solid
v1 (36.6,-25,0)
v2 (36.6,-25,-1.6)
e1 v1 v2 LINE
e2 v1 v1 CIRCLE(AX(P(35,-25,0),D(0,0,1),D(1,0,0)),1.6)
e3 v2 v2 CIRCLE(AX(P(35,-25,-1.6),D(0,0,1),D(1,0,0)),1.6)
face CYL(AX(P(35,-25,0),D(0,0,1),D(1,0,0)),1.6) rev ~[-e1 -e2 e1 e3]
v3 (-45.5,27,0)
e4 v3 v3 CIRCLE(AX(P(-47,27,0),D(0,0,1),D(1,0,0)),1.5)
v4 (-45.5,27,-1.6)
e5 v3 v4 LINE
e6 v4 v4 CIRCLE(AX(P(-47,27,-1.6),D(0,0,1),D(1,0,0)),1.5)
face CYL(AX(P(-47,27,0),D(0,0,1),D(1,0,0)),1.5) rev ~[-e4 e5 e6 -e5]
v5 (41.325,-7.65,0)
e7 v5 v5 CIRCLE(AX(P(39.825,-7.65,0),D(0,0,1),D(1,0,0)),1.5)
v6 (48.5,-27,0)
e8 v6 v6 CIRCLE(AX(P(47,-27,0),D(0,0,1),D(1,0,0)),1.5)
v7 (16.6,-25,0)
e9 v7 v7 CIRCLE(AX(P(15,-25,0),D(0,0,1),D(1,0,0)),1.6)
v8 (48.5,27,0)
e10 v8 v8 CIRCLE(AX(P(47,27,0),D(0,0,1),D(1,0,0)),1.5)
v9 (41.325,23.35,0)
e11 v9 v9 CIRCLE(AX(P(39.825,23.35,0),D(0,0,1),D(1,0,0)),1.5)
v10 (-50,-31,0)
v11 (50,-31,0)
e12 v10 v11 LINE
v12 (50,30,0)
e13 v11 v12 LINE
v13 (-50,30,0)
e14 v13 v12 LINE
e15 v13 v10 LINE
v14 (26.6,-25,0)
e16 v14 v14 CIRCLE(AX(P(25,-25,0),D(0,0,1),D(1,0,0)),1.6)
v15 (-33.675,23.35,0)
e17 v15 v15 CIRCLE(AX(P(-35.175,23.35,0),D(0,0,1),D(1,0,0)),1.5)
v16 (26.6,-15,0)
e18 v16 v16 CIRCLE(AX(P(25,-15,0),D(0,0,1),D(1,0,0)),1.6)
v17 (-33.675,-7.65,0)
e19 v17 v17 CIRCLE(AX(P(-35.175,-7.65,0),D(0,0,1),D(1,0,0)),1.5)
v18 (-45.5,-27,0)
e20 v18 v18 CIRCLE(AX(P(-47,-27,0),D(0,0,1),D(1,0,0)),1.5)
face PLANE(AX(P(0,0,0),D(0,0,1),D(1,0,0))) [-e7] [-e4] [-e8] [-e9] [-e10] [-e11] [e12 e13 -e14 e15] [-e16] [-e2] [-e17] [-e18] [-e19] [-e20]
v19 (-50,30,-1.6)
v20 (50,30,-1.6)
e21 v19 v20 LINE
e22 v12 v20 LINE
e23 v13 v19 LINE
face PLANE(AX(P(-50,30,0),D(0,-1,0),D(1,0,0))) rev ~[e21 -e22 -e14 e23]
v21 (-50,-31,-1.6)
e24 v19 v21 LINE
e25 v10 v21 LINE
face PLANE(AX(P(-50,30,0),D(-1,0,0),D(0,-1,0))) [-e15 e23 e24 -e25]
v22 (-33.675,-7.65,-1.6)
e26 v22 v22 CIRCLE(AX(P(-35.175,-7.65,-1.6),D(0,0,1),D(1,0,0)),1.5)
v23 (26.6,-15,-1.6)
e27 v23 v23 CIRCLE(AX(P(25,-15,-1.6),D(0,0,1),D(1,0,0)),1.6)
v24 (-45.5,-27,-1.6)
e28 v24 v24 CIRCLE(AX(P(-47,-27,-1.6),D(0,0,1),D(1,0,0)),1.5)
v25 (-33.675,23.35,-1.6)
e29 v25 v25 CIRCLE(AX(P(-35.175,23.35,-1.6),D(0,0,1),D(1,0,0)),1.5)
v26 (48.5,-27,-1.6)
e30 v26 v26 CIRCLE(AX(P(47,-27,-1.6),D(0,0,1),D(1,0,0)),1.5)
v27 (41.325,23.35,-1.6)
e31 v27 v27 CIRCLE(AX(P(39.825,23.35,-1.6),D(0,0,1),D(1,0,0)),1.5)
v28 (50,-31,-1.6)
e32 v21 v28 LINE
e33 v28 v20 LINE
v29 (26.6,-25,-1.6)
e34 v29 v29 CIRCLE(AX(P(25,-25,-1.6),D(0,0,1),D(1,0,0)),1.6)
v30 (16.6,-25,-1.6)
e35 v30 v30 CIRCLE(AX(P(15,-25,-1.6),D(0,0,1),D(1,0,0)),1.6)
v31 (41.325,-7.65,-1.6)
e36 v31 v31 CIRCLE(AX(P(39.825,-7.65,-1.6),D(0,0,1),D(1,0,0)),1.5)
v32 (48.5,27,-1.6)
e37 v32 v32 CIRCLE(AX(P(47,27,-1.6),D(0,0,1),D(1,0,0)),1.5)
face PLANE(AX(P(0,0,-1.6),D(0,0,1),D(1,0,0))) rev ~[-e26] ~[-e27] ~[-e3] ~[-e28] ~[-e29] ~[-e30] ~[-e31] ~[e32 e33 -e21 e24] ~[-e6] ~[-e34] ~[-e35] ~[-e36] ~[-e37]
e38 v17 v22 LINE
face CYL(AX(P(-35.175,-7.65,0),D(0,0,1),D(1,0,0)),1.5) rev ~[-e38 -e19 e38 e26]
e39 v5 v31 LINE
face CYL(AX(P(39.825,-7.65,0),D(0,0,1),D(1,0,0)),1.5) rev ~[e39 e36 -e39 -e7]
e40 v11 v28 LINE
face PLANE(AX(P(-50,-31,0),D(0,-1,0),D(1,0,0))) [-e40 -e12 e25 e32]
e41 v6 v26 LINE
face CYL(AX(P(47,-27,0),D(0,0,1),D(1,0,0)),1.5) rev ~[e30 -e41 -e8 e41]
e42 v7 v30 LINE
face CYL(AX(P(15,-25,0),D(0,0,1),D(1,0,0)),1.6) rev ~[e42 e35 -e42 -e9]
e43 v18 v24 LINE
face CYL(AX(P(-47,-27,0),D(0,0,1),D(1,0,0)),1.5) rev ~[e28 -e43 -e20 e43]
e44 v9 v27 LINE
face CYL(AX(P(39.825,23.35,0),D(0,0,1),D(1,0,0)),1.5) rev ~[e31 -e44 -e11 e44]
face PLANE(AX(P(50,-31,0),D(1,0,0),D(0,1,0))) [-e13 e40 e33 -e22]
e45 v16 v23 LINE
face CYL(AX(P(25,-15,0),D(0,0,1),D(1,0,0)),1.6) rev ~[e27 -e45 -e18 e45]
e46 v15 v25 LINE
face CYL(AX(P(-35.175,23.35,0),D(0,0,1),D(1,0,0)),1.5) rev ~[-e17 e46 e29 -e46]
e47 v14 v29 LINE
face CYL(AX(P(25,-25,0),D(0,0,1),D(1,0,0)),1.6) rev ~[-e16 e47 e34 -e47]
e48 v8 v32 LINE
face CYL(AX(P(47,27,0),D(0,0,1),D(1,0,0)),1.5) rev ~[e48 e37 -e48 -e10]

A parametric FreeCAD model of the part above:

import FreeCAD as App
import Part
import Sketcher
from FreeCAD import Vector
Q = App.Units.Quantity


def add_polygon(sketch, points):
    """Adds a closed chain of lines whose ends are joined by coincident constraints."""
    first, n = sketch.GeometryCount, len(points)
    for a, b in zip(points, points[1:] + points[:1]):
        sketch.addGeometry(Part.LineSegment(App.Vector(*a, 0), App.Vector(*b, 0)), False)
    for i in range(n):
        sketch.addConstraint(Sketcher.Constraint("Coincident", first + i, 2, first + (i + 1) % n, 1))

doc = App.newDocument("Part")
body = doc.addObject("PartDesign::Body", "Body")

sketch1 = body.newObject("Sketcher::SketchObject", "Sketch")
sketch1.AttachmentSupport = (doc.getObject("XY_Plane"), [""])
sketch1.MapMode = "FlatFace"
add_polygon(sketch1, [(50, 30), (-50, 30), (-50, -31), (50, -31)])
sketch1.addGeometry(Part.Circle(Vector(-47, -27, 0), Vector(0, 0, 1), 1.5), False)
sketch1.addGeometry(Part.Circle(Vector(-35.2, -7.7, 0), Vector(0, 0, 1), 1.5), False)
sketch1.addGeometry(Part.Circle(Vector(15, -25, 0), Vector(0, 0, 1), 1.6), False)
sketch1.addGeometry(Part.Circle(Vector(25, -25, 0), Vector(0, 0, 1), 1.6), False)
sketch1.addGeometry(Part.Circle(Vector(35, -25, 0), Vector(0, 0, 1), 1.6), False)
sketch1.addGeometry(Part.Circle(Vector(47, -27, 0), Vector(0, 0, 1), 1.5), False)
sketch1.addGeometry(Part.Circle(Vector(25, -15, 0), Vector(0, 0, 1), 1.6), False)
sketch1.addGeometry(Part.Circle(Vector(39.8, -7.7, 0), Vector(0, 0, 1), 1.5), False)
sketch1.addGeometry(Part.Circle(Vector(-47, 27, 0), Vector(0, 0, 1), 1.5), False)
sketch1.addGeometry(Part.Circle(Vector(-35.2, 23.4, 0), Vector(0, 0, 1), 1.5), False)
sketch1.addGeometry(Part.Circle(Vector(39.8, 23.4, 0), Vector(0, 0, 1), 1.5), False)
sketch1.addGeometry(Part.Circle(Vector(47, 27, 0), Vector(0, 0, 1), 1.5), False)
sketch1.addConstraint([
    Sketcher.Constraint("Horizontal", 0),
    Sketcher.Constraint("Vertical", 1),
    Sketcher.Constraint("Horizontal", 2),
    Sketcher.Constraint("Vertical", 3),
    Sketcher.Constraint("Equal", 4, 5),
    Sketcher.Constraint("Equal", 6, 7),
    Sketcher.Constraint("Equal", 7, 8),
    Sketcher.Constraint("Equal", 5, 9),
    Sketcher.Constraint("Equal", 8, 10),
    Sketcher.Constraint("Equal", 9, 11),
    Sketcher.Constraint("Equal", 11, 12),
    Sketcher.Constraint("Equal", 12, 13),
    Sketcher.Constraint("Equal", 13, 14),
    Sketcher.Constraint("Equal", 14, 15),
    Sketcher.Constraint("Symmetric", 9, 3, 12, 3, -1, 1),
    Sketcher.Constraint("Symmetric", 4, 3, 15, 3, -1, 1),
    Sketcher.Constraint("Symmetric", 4, 3, 9, 3, -2),
    Sketcher.Constraint("Horizontal", 6, 3, 7, 3),
    Sketcher.Constraint("Horizontal", 7, 3, 8, 3),
    Sketcher.Constraint("Horizontal", 5, 3, 11, 3),
    Sketcher.Constraint("Horizontal", 13, 3, 14, 3),
    Sketcher.Constraint("Vertical", 7, 3, 10, 3),
    Sketcher.Constraint("Vertical", 5, 3, 13, 3),
    Sketcher.Constraint("Vertical", 11, 3, 14, 3),
    Sketcher.Constraint("Diameter", 4, Q("3 mm")),
    Sketcher.Constraint("Diameter", 6, Q("3.2 mm")),
    Sketcher.Constraint("DistanceX", 0, 2, 0, 1, Q("100 mm")),
    Sketcher.Constraint("DistanceY", 1, 2, 1, 1, Q("61 mm")),
    Sketcher.Constraint("DistanceX", 4, 3, -1, 1, Q("47 mm")),
    Sketcher.Constraint("DistanceY", 4, 3, -1, 1, Q("27 mm")),
    Sketcher.Constraint("DistanceX", -1, 1, 6, 3, Q("15 mm")),
    Sketcher.Constraint("DistanceY", 6, 3, -1, 1, Q("25 mm")),
    Sketcher.Constraint("DistanceX", -1, 1, 7, 3, Q("25 mm")),
    Sketcher.Constraint("DistanceX", -1, 1, 8, 3, Q("35 mm")),
    Sketcher.Constraint("DistanceY", 10, 3, -1, 1, Q("15 mm")),
    Sketcher.Constraint("DistanceX", 0, 2, -1, 1, Q("50 mm")),
    Sketcher.Constraint("DistanceY", -1, 1, 0, 2, Q("30 mm")),
    Sketcher.Constraint("DistanceY", 5, 3, 13, 3, Q("31 mm")),
    Sketcher.Constraint("DistanceY", 5, 3, -1, 1, Q("7.65 mm")),
    Sketcher.Constraint("DistanceX", 5, 3, -1, 1, Q("35.175 mm")),
    Sketcher.Constraint("DistanceX", -1, 1, 11, 3, Q("39.825 mm")),
])
pad1 = body.newObject("PartDesign::Pad", "Pad")
pad1.Profile = sketch1
pad1.Length = 1.6
pad1.Reversed = True

doc.recompute()
